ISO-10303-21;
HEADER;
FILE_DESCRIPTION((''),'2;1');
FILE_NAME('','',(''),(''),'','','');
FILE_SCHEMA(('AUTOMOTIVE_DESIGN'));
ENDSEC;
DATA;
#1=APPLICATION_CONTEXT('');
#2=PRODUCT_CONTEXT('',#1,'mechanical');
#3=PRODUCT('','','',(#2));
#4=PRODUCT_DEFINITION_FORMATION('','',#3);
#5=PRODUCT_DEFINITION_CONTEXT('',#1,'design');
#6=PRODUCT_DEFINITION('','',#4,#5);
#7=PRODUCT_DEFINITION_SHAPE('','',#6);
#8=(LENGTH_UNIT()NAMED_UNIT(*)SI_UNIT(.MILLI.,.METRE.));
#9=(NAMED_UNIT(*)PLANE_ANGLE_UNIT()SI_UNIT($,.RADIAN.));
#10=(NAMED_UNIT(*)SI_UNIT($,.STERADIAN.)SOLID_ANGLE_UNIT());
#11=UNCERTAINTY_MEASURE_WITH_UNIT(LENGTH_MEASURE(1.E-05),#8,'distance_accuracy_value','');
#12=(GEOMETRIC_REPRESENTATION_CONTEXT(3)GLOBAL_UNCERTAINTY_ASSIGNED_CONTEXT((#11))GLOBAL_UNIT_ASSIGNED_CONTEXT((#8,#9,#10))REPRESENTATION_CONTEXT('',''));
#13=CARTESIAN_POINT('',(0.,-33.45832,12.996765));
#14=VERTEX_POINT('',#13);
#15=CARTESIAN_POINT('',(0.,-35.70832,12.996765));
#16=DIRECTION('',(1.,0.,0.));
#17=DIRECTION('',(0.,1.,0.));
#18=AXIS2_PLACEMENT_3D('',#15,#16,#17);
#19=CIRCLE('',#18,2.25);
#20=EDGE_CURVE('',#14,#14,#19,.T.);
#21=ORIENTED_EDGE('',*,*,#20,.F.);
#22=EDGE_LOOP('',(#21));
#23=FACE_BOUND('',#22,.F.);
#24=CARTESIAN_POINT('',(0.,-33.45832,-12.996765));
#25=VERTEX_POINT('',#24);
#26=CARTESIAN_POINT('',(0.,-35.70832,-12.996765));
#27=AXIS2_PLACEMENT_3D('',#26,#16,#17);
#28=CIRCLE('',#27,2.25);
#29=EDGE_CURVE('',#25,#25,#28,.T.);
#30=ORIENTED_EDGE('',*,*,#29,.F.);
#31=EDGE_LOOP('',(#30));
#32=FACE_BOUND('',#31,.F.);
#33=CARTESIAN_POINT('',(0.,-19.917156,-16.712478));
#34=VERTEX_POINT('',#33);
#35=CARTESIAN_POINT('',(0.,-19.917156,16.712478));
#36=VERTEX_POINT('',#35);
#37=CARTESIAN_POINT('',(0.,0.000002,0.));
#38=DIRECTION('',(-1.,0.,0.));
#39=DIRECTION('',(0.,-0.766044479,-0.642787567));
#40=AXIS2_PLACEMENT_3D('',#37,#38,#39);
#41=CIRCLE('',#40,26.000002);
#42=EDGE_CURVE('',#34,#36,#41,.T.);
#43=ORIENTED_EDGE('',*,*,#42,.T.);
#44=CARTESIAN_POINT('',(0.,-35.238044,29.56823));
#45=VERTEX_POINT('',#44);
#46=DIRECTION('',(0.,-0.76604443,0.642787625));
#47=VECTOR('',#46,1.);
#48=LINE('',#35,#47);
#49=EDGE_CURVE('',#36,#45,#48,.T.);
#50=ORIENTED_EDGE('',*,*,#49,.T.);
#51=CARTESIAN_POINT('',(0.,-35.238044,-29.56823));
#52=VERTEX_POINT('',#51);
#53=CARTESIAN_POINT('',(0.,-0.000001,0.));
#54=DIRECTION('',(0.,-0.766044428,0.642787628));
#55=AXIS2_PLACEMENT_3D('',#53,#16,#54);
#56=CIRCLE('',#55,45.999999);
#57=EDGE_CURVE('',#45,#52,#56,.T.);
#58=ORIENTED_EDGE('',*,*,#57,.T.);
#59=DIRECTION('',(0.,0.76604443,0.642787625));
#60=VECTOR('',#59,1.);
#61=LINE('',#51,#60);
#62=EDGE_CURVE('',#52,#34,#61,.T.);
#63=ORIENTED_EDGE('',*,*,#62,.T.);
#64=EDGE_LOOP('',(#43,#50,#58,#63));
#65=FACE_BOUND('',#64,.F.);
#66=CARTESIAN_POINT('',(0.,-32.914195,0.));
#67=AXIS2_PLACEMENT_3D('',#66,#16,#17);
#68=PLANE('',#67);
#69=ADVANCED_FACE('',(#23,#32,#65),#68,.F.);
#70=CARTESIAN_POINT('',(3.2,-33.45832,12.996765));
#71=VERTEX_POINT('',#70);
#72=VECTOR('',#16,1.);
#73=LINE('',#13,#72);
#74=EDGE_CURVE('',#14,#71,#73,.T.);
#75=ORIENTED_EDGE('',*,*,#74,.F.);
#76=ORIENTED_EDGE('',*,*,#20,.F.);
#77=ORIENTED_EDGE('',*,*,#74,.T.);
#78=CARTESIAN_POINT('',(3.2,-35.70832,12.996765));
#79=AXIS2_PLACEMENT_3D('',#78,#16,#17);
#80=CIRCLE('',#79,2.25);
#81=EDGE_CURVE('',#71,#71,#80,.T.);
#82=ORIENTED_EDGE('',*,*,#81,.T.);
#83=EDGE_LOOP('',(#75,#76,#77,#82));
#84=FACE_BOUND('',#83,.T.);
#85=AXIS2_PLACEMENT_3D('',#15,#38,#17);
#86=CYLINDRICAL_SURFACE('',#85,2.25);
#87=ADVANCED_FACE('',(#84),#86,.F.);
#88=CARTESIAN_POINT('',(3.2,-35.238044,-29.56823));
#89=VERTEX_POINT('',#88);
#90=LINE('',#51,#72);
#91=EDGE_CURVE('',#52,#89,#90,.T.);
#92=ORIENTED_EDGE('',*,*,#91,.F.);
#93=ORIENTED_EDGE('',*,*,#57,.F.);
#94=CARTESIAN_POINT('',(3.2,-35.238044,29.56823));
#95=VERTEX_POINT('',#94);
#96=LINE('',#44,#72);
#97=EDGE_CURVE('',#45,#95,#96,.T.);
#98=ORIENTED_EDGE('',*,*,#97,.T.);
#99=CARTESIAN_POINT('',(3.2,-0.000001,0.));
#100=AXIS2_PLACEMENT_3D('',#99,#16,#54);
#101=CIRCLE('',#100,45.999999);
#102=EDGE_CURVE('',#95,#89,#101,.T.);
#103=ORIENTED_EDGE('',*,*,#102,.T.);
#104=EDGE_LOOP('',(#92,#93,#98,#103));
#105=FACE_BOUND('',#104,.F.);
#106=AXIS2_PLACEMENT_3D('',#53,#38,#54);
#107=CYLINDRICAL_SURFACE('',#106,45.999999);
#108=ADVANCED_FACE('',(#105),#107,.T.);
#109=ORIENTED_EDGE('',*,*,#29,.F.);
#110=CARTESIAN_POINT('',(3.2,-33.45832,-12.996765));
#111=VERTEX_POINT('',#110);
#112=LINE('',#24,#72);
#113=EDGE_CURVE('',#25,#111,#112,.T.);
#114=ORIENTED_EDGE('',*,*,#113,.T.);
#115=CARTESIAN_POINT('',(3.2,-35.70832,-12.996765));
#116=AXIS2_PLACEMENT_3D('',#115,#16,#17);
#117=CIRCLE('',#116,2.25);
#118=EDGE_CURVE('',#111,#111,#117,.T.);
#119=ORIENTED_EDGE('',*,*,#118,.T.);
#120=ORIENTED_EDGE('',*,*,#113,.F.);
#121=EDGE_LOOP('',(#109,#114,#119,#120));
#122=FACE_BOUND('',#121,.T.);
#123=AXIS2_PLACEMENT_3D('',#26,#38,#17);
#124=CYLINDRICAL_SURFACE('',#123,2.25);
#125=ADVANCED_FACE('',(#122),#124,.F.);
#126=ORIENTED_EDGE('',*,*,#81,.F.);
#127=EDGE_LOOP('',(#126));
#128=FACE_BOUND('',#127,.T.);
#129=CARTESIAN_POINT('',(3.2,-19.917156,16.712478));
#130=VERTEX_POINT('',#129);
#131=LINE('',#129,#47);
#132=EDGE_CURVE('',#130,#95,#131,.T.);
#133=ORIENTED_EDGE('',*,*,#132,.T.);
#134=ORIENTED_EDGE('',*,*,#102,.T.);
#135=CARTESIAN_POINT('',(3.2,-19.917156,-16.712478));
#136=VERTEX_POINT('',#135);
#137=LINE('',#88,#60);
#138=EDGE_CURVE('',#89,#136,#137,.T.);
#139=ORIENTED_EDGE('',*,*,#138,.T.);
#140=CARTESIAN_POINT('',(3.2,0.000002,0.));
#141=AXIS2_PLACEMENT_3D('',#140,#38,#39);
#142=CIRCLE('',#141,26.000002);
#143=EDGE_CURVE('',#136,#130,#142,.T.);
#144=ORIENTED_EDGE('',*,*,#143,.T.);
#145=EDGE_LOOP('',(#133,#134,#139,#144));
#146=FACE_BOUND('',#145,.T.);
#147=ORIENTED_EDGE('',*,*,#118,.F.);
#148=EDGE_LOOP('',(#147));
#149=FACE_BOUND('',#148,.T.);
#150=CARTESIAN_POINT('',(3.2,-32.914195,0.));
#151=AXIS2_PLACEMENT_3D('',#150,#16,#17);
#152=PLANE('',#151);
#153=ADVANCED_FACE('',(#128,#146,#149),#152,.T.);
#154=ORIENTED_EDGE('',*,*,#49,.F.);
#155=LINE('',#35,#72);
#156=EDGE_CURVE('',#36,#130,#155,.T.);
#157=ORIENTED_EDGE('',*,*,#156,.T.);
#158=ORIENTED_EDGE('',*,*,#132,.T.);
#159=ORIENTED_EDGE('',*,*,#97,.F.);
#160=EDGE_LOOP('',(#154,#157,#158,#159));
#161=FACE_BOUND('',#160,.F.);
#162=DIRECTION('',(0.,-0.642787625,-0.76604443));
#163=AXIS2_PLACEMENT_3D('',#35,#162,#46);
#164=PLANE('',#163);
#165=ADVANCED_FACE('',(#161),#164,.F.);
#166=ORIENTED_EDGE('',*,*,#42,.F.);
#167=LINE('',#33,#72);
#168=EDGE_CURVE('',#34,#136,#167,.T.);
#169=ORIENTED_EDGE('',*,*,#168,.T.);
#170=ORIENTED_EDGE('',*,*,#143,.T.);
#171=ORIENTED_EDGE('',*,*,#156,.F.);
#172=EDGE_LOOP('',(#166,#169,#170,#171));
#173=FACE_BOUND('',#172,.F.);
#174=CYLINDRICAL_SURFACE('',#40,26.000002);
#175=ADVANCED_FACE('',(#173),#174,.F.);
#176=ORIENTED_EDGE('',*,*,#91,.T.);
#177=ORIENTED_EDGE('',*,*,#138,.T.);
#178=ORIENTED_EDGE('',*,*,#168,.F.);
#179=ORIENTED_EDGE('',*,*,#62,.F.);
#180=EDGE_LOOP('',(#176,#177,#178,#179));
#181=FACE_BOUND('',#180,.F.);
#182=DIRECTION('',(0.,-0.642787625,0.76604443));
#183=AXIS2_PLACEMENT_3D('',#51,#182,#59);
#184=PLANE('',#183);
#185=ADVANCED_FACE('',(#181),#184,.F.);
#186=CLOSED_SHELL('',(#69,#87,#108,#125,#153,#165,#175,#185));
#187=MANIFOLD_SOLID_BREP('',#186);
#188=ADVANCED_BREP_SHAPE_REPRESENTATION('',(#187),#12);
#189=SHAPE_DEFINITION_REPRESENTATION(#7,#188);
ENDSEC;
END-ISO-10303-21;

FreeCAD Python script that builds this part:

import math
import FreeCAD as App
import Part
import Sketcher
from FreeCAD import Vector
Q = App.Units.Quantity

doc = App.newDocument("Part")
body = doc.addObject("PartDesign::Body", "Body")

sketch1 = body.newObject("Sketcher::SketchObject", "Sketch")
sketch1.AttachmentSupport = (doc.getObject("YZ_Plane"), [""])
sketch1.MapMode = "FlatFace"
sketch1.addGeometry([
    Part.ArcOfCircle(Part.Circle(Vector(0, 0, 0), Vector(0, 0, 1), 26), math.radians(140), math.radians(220)),
    Part.LineSegment(Vector(-19.9, 16.7, 0), Vector(-35.2, 29.6, 0)),
    Part.ArcOfCircle(Part.Circle(Vector(0, 0, 0), Vector(0, 0, 1), 46), math.radians(140), math.radians(220)),
    Part.LineSegment(Vector(-35.2, -29.6, 0), Vector(-19.9, -16.7, 0)),
    Part.Circle(Vector(-35.7, -13, 0), Vector(0, 0, 1), 2.2),
    Part.Circle(Vector(-35.7, 13, 0), Vector(0, 0, 1), 2.2),
], False)
sketch1.addConstraint([
    Sketcher.Constraint("Coincident", 0, 1, 1, 1),
    Sketcher.Constraint("Coincident", 1, 2, 2, 1),
    Sketcher.Constraint("Coincident", 2, 2, 3, 1),
    Sketcher.Constraint("Coincident", 3, 2, 0, 2),
    Sketcher.Constraint("Coincident", 0, 3, -1, 1),
    Sketcher.Constraint("Coincident", 2, 3, -1, 1),
    Sketcher.Constraint("Equal", 4, 5),
    Sketcher.Constraint("Symmetric", 4, 3, 5, 3, -1),
    Sketcher.Constraint("Vertical", 1, 2, 2, 2),
    Sketcher.Constraint("Vertical", 0, 1, 3, 2),
    Sketcher.Constraint("Radius", 0, 26.000002),
    Sketcher.Constraint("Radius", 2, 45.999999),
    Sketcher.Constraint("Diameter", 4, 4.5),
    Sketcher.Constraint("Angle", 1, Q("139.999999 deg")),
    Sketcher.Constraint("DistanceX", 4, 3, -1, 1, 35.70832),
    Sketcher.Constraint("DistanceY", -1, 1, 1, 2, 29.56823),
    Sketcher.Constraint("DistanceY", 4, 3, 5, 3, 25.99353),
])
pad1 = body.newObject("PartDesign::Pad", "Pad")
pad1.Profile = sketch1
pad1.Length = 3.2

doc.recompute()
